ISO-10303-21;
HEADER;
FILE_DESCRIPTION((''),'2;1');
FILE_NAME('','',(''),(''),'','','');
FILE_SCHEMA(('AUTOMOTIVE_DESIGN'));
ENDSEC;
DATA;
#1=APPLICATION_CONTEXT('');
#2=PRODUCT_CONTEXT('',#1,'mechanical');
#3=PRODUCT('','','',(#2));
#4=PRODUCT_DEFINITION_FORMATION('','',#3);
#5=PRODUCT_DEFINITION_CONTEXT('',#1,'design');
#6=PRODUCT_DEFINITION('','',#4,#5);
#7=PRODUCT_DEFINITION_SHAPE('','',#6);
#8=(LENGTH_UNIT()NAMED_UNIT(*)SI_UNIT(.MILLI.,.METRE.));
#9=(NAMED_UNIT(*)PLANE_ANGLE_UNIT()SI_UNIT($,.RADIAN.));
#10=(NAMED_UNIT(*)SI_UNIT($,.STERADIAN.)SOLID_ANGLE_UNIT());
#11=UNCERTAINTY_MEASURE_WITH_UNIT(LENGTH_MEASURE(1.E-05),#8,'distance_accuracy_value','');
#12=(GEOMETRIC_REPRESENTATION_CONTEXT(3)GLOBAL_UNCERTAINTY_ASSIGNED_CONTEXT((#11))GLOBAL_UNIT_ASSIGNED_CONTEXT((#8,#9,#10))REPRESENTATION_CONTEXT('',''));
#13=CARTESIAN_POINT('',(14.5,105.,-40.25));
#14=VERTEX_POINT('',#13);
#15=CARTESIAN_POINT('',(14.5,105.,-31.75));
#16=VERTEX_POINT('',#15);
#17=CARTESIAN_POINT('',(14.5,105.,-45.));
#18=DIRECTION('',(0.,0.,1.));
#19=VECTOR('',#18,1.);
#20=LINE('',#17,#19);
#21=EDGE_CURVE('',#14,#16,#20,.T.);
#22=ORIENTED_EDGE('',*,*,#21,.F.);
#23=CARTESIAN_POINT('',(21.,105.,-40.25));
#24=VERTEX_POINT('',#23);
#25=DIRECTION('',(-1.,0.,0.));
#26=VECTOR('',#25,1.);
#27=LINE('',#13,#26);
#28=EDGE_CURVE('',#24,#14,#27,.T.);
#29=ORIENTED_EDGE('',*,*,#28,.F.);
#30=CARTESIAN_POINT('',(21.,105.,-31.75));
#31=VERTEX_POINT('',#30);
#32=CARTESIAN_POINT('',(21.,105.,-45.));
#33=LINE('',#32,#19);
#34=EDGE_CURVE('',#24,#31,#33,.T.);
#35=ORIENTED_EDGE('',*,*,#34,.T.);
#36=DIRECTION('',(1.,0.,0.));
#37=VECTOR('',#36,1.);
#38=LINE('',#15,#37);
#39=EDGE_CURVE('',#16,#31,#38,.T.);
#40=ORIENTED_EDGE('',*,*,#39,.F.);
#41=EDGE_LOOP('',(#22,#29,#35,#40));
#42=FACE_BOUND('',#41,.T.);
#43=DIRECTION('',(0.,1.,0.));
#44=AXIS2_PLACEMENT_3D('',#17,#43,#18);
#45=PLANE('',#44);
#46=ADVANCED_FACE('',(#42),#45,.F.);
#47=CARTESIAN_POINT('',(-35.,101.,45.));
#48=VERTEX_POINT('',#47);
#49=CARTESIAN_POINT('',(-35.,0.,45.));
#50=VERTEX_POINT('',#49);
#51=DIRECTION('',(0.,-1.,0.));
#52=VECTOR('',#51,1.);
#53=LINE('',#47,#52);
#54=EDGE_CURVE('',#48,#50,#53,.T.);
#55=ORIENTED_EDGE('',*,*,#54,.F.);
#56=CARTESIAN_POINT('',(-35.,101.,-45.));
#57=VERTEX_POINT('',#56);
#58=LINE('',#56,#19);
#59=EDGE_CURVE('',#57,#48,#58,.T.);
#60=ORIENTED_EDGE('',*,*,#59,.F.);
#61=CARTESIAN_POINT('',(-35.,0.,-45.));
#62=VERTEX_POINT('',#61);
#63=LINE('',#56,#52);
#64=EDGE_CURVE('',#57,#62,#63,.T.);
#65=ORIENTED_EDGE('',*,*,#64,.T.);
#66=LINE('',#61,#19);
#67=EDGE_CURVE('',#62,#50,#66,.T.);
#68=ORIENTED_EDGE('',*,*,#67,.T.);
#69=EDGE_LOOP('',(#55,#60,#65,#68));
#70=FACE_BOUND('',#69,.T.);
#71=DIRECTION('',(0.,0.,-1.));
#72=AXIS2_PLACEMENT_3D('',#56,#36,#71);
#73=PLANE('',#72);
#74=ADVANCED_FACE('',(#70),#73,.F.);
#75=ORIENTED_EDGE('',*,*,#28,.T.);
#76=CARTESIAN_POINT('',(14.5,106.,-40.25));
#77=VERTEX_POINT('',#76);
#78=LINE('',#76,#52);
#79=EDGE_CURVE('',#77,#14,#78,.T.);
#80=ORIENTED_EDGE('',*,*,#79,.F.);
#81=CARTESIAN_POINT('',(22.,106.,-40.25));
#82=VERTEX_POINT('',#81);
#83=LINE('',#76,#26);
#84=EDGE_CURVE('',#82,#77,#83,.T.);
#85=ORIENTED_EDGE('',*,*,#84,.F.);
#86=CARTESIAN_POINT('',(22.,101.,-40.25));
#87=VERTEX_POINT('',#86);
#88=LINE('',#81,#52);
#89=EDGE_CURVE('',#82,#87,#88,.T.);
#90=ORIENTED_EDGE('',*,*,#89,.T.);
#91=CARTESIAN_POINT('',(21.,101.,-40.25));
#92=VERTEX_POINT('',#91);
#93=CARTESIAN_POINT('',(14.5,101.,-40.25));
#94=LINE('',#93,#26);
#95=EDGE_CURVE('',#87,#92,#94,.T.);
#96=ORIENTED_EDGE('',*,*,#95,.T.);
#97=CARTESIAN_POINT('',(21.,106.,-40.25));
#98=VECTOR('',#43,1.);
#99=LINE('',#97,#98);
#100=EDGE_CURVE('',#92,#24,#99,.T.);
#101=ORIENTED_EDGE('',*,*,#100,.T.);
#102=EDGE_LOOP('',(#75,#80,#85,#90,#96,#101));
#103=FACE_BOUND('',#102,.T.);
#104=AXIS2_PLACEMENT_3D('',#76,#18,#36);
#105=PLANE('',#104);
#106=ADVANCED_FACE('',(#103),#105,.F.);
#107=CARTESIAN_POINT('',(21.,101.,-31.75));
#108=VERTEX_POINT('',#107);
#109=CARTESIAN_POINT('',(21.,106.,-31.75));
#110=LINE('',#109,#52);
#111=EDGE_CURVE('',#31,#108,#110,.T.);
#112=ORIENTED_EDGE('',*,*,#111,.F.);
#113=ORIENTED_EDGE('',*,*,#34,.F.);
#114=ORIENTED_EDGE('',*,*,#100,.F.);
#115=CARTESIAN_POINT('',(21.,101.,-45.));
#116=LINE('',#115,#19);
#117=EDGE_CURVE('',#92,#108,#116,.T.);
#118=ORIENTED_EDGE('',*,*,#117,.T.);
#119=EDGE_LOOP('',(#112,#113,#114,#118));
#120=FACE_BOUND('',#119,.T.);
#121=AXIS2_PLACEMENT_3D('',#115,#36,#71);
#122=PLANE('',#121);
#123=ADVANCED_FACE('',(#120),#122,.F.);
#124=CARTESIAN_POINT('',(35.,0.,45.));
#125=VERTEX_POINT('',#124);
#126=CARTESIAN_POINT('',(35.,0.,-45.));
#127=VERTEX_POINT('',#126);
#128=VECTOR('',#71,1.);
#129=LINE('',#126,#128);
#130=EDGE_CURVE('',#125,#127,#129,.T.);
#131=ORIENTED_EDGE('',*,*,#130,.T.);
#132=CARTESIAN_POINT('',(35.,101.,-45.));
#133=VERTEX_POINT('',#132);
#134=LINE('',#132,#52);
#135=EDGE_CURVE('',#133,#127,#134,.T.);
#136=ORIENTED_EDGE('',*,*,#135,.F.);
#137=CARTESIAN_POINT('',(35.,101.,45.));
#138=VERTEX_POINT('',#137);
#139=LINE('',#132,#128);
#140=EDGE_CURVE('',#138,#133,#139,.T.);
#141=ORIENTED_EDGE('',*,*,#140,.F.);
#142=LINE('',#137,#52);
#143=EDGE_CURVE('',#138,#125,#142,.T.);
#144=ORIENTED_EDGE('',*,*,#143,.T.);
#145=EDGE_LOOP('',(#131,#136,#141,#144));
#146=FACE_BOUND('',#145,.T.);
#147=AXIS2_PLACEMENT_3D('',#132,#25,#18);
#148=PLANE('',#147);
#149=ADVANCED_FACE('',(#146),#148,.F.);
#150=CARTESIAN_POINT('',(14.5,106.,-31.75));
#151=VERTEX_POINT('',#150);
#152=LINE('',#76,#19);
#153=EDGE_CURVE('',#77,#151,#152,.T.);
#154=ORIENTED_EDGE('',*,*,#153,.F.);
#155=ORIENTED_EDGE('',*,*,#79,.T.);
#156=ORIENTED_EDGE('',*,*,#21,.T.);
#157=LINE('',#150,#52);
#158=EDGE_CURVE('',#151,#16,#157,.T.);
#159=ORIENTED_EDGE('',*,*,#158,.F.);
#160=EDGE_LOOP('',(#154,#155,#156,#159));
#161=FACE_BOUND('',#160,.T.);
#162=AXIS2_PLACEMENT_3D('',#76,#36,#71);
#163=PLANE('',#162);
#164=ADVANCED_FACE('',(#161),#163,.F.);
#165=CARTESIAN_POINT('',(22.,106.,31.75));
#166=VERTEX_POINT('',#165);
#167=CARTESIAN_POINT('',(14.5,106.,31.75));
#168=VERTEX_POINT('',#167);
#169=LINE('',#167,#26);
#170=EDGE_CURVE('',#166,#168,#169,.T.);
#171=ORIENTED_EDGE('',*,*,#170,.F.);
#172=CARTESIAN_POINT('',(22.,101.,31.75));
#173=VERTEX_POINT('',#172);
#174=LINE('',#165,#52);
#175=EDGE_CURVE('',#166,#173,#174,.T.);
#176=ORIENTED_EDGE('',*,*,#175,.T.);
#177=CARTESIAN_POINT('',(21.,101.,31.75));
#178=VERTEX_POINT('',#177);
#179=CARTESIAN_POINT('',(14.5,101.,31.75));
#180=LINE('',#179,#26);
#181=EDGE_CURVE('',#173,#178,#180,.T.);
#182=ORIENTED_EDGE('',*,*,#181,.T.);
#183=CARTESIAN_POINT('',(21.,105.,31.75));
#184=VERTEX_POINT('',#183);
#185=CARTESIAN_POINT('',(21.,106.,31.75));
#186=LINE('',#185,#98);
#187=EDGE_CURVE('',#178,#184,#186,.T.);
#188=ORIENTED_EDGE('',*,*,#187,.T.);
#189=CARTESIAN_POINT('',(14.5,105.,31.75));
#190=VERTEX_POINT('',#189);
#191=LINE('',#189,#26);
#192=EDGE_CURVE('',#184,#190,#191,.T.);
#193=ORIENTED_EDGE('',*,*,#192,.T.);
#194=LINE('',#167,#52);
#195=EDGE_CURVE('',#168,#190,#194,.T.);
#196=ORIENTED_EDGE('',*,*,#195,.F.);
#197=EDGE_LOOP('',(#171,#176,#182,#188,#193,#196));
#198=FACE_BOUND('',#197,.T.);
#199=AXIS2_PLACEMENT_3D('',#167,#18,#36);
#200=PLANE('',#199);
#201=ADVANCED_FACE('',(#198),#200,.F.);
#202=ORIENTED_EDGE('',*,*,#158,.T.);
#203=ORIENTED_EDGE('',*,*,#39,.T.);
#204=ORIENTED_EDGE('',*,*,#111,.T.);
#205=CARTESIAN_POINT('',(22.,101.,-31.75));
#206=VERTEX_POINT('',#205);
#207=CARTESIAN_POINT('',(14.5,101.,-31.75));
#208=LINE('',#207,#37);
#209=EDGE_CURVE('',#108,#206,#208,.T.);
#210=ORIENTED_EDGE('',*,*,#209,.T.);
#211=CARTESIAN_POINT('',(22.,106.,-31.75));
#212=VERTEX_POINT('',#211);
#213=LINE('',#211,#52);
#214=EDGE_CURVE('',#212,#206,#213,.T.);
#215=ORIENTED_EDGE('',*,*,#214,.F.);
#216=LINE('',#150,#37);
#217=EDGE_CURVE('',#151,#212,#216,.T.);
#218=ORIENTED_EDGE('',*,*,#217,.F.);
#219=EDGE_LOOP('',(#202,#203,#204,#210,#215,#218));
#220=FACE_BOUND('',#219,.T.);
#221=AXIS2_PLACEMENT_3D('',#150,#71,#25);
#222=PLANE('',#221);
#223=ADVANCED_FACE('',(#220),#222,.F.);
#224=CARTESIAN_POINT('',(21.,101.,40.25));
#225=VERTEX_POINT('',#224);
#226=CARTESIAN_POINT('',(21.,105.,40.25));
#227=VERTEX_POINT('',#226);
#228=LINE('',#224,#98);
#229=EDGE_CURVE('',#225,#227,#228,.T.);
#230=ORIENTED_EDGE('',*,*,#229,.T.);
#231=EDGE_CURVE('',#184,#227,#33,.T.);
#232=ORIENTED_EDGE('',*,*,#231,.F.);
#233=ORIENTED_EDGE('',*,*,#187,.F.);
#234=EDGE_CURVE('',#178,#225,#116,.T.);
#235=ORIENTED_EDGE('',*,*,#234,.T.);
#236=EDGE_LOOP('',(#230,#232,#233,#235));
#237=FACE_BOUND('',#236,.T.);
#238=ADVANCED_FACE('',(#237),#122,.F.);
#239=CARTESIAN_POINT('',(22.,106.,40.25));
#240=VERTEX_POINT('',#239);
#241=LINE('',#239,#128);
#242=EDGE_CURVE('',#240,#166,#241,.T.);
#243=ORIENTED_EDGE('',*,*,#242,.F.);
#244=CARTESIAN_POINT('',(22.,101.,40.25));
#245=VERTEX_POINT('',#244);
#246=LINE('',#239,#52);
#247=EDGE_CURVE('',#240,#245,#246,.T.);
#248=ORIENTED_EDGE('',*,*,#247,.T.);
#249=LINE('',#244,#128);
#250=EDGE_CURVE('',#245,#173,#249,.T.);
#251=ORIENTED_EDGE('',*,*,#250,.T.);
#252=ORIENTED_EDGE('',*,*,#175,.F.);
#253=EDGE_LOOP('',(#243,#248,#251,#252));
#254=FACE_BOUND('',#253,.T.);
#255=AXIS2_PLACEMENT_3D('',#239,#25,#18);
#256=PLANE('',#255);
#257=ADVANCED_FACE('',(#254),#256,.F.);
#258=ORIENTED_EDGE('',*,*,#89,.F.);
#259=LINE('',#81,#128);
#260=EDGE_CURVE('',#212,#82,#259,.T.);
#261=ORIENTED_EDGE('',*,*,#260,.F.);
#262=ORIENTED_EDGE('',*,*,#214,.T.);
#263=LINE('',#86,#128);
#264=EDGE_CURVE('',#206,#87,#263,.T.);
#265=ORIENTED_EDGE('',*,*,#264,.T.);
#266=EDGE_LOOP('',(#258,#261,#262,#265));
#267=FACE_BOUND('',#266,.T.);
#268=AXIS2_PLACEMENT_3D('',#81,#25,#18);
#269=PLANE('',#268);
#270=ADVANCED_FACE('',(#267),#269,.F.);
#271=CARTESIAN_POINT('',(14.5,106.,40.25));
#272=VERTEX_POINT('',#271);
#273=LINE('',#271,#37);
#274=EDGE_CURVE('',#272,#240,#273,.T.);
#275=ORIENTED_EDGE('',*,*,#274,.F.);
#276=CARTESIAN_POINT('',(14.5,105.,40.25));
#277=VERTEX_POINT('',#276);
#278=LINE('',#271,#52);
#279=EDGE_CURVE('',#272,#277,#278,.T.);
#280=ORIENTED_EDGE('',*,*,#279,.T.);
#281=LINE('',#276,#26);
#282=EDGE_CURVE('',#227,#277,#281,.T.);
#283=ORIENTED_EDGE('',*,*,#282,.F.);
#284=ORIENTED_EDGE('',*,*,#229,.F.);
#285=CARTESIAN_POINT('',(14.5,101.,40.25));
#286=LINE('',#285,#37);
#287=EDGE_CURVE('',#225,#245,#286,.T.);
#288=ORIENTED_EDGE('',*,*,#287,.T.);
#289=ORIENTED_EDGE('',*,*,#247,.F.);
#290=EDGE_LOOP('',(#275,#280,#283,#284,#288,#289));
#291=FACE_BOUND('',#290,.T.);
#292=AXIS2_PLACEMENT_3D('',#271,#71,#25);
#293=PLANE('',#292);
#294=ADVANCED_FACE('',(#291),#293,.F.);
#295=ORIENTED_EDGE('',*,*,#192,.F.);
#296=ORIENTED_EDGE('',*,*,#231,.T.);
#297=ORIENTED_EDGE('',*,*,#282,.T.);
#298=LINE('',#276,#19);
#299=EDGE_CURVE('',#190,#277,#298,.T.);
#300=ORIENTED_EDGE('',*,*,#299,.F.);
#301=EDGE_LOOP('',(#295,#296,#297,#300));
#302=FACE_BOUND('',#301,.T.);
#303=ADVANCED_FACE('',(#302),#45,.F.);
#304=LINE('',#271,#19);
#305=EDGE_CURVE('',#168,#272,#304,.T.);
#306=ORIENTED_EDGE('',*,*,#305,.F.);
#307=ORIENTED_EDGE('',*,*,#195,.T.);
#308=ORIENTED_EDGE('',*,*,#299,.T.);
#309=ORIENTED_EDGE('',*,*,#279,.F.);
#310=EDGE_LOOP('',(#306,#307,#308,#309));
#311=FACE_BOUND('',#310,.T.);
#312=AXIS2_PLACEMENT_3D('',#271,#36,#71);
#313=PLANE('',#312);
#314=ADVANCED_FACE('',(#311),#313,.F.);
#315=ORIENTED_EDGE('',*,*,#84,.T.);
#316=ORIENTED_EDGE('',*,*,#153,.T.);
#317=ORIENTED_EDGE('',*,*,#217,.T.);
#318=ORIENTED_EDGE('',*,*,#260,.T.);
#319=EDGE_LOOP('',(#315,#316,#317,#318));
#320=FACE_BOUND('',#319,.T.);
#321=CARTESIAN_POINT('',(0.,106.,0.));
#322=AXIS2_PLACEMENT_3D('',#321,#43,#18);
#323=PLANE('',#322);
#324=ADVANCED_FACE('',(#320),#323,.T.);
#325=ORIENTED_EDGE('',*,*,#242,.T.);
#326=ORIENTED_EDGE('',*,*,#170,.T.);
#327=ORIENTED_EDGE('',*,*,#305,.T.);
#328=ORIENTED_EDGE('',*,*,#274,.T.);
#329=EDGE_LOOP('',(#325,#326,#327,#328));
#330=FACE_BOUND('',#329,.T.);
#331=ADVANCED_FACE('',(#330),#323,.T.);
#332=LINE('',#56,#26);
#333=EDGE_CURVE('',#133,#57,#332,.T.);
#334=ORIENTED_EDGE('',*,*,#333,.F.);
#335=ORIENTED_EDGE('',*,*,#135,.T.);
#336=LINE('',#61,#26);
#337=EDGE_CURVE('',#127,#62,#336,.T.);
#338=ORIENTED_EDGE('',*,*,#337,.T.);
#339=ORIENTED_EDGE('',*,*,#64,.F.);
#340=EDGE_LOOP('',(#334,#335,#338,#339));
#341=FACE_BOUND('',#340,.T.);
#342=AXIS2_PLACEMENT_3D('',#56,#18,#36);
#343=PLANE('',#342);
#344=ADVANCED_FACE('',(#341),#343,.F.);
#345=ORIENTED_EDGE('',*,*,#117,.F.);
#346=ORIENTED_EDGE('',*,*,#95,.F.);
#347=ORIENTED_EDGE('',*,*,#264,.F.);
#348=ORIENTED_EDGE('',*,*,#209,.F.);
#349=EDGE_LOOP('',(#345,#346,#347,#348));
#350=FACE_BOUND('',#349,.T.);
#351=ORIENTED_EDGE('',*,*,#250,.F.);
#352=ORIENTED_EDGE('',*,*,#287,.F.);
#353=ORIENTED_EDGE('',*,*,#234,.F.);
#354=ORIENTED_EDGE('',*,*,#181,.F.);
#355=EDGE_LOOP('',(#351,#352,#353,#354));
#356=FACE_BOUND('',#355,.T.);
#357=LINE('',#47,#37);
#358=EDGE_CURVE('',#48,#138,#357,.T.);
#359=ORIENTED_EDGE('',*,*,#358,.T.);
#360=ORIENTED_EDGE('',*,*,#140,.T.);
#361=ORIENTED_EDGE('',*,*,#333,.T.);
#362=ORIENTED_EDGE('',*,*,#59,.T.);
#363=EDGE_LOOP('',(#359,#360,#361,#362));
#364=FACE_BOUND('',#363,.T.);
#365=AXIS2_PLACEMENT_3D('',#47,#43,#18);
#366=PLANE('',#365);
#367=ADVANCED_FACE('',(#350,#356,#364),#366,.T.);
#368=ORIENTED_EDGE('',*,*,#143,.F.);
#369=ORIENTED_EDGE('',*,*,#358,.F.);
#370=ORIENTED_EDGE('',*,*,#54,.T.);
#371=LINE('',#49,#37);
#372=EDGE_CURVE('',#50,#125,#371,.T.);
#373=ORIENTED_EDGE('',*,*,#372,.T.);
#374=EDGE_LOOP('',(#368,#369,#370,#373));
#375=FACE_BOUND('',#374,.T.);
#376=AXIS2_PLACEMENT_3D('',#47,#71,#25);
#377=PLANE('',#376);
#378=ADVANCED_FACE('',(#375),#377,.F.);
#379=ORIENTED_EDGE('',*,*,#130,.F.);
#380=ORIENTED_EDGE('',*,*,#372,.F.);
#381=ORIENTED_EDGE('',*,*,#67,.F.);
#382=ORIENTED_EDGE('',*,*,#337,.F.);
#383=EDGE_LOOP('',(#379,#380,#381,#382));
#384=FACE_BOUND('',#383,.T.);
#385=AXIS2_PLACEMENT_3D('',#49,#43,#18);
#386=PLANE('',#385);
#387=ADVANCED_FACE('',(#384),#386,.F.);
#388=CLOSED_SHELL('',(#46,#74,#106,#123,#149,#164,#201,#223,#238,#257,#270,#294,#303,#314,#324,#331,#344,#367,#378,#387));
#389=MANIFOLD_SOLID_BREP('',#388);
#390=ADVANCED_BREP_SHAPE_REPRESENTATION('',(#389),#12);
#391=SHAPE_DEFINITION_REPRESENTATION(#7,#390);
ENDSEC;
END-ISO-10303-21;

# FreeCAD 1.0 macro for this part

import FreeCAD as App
import Part
import Sketcher

V = App.Vector
Q = App.Units.Quantity


def add_polygon(sketch, points):
    """Adds a closed chain of lines whose ends are joined by coincident constraints."""
    first, n = sketch.GeometryCount, len(points)
    for a, b in zip(points, points[1:] + points[:1]):
        sketch.addGeometry(Part.LineSegment(App.Vector(*a, 0), App.Vector(*b, 0)), False)
    for i in range(n):
        sketch.addConstraint(Sketcher.Constraint("Coincident", first + i, 2, first + (i + 1) % n, 1))

doc = App.newDocument("Part")
params = doc.addObject("Spreadsheet::Sheet", "Params")
for row, (alias, value) in enumerate([
    ("sketch1_width", "70 mm"),
    ("sketch1_height", "90 mm"),
    ("pad1_length", "101 mm"),
    ("sketch2_width", "7.5 mm"),
    ("sketch2_height", "8.5 mm"),
    ("pad2_length", "5 mm"),
    ("sketch3_height", "4 mm"),
    ("sketch3_width", "6.5 mm"),
], start=1):
    params.set(f"A{row}", alias)
    params.set(f"B{row}", "=" + value)
    params.setAlias(f"B{row}", alias)

body = doc.addObject("PartDesign::Body", "Body")

sketch1 = body.newObject("Sketcher::SketchObject", "Sketch")
sketch1.AttachmentSupport = (doc.getObject("XZ_Plane"), [""])
sketch1.MapMode = "FlatFace"
add_polygon(sketch1, [(-35, -45), (-35, 45), (35, 45), (35, -45)])
sketch1.addConstraint([
    Sketcher.Constraint("Vertical", 0),
    Sketcher.Constraint("Horizontal", 1),
    Sketcher.Constraint("Vertical", 2),
    Sketcher.Constraint("Horizontal", 3),
    Sketcher.Constraint("Symmetric", 0, 2, 2, 2, -1, 1),
    Sketcher.Constraint("DistanceX", 1, 1, 1, 2, Q("70 mm")),
    Sketcher.Constraint("DistanceY", 0, 1, 0, 2, Q("90 mm")),
])
sketch1.setExpression("Constraints[9]", "Params.sketch1_width")
sketch1.setExpression("Constraints[10]", "Params.sketch1_height")
pad1 = body.newObject("PartDesign::Pad", "Pad")
pad1.Profile = sketch1
pad1.setExpression("Length", "Params.pad1_length")
pad1.Reversed = True

sketch2 = body.newObject("Sketcher::SketchObject", "Sketch001")
sketch2.AttachmentSupport = (doc.getObject("XZ_Plane"), [""])
sketch2.MapMode = "FlatFace"
sketch2.AttachmentOffset = App.Placement(V(0, 0, -101), App.Rotation())
add_polygon(sketch2, [(14, -40), (14, -32), (22, -32), (22, -40)])
add_polygon(sketch2, [(14, 32), (14, 40), (22, 40), (22, 32)])
sketch2.addConstraint([
    Sketcher.Constraint("Vertical", 0),
    Sketcher.Constraint("Horizontal", 1),
    Sketcher.Constraint("Vertical", 2),
    Sketcher.Constraint("Horizontal", 3),
    Sketcher.Constraint("Vertical", 4),
    Sketcher.Constraint("Horizontal", 5),
    Sketcher.Constraint("Vertical", 6),
    Sketcher.Constraint("Horizontal", 7),
    Sketcher.Constraint("Symmetric", 3, 2, 4, 2, -1),
    Sketcher.Constraint("Symmetric", 1, 2, 6, 2, -1),
    Sketcher.Constraint("DistanceX", 1, 1, 1, 2, Q("7.5 mm")),
    Sketcher.Constraint("DistanceY", 0, 1, 0, 2, Q("8.5 mm")),
    Sketcher.Constraint("DistanceX", -1, 1, 1, 2, Q("22 mm")),
    Sketcher.Constraint("DistanceY", 0, 2, 4, 2, Q("72 mm")),
])
sketch2.setExpression("Constraints[18]", "Params.sketch2_width")
sketch2.setExpression("Constraints[19]", "Params.sketch2_height")
pad2 = body.newObject("PartDesign::Pad", "Pad001")
pad2.Profile = sketch2
pad2.setExpression("Length", "Params.pad2_length")
pad2.Reversed = True

sketch3 = body.newObject("Sketcher::SketchObject", "Sketch002")
sketch3.AttachmentSupport = (doc.getObject("XY_Plane"), [""])
sketch3.MapMode = "FlatFace"
sketch3.AttachmentOffset = App.Placement(V(0, 0, 40.25), App.Rotation())
add_polygon(sketch3, [(14.5, 105), (14.5, 101), (21, 101), (21, 105)])
sketch3.addConstraint([
    Sketcher.Constraint("Vertical", 0),
    Sketcher.Constraint("Horizontal", 1),
    Sketcher.Constraint("Vertical", 2),
    Sketcher.Constraint("Horizontal", 3),
    Sketcher.Constraint("DistanceY", 0, 2, 0, 1, Q("4 mm")),
    Sketcher.Constraint("DistanceX", 1, 1, 1, 2, Q("6.5 mm")),
    Sketcher.Constraint("DistanceY", -1, 1, 0, 2, Q("101 mm")),
    Sketcher.Constraint("DistanceX", -1, 1, 1, 2, Q("21 mm")),
])
sketch3.setExpression("Constraints[8]", "Params.sketch3_height")
sketch3.setExpression("Constraints[9]", "Params.sketch3_width")
pocket1 = body.newObject("PartDesign::Pocket", "Pocket")
pocket1.Profile = sketch3
pocket1.Type = "ThroughAll"

doc.recompute()
